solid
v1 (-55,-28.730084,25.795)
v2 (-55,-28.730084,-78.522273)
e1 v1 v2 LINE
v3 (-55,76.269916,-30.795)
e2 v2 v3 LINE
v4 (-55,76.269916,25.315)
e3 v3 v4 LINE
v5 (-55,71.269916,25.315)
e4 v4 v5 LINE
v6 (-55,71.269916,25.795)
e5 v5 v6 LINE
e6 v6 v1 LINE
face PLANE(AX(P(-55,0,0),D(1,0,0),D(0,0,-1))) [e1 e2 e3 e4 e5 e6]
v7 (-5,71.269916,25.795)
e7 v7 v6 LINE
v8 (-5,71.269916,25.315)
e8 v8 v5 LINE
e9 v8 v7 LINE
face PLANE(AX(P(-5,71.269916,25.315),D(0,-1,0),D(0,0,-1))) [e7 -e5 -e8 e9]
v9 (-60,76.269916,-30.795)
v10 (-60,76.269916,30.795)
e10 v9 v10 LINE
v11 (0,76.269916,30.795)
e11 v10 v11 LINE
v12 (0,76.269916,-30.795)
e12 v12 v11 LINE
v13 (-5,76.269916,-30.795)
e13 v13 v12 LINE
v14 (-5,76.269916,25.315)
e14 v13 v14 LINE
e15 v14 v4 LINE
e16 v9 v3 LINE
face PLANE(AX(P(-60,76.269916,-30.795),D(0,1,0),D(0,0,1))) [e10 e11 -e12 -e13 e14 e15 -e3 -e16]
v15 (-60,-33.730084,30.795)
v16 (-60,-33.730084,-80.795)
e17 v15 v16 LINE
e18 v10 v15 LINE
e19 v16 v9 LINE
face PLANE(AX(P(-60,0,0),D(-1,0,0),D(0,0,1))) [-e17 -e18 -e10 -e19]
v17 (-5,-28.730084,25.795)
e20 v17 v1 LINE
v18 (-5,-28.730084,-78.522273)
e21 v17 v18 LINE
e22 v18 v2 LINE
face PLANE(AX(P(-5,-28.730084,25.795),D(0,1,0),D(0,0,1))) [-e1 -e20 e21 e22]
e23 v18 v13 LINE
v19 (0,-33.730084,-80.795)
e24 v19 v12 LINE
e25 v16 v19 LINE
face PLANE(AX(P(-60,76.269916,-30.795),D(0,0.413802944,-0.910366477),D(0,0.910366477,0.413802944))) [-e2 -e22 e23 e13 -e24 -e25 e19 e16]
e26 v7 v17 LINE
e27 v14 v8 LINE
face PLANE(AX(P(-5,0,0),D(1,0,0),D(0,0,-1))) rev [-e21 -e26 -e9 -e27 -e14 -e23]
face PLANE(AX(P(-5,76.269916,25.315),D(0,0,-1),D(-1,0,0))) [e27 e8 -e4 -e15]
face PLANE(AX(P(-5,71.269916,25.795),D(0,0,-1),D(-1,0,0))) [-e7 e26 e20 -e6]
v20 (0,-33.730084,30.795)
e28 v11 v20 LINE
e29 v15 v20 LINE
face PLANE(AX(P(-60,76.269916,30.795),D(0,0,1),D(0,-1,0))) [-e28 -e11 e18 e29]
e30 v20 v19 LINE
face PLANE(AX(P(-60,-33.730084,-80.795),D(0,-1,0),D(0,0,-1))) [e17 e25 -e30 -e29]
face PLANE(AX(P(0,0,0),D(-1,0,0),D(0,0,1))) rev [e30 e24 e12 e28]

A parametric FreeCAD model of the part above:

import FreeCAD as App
import Part
import Sketcher

V = App.Vector

doc = App.newDocument("Part")
body = doc.addObject("PartDesign::Body", "Body")

# Sketch on YZ plane
sketch1 = doc.addObject("Sketcher::SketchObject", "Sketch")
body.addObject(sketch1)
sketch1.AttachmentSupport = (doc.YZ_Plane, [""])
sketch1.MapMode = "FlatFace"
sketch1.addGeometry(Part.LineSegment(V(-34, -81, 0), V(76, -31, 0)), False)
sketch1.addGeometry(Part.LineSegment(V(76, -31, 0), V(76, 31, 0)), False)
sketch1.addGeometry(Part.LineSegment(V(76, 31, 0), V(-34, 31, 0)), False)
sketch1.addGeometry(Part.LineSegment(V(-34, 31, 0), V(-34, -81, 0)), False)
sketch1.addConstraint(Sketcher.Constraint("Coincident", 0, 2, 1, 1))
sketch1.addConstraint(Sketcher.Constraint("Coincident", 1, 2, 2, 1))
sketch1.addConstraint(Sketcher.Constraint("Coincident", 2, 2, 3, 1))
sketch1.addConstraint(Sketcher.Constraint("Coincident", 3, 2, 0, 1))
sketch1.addConstraint(Sketcher.Constraint("Vertical", 1))
sketch1.addConstraint(Sketcher.Constraint("Horizontal", 2))
sketch1.addConstraint(Sketcher.Constraint("Vertical", 3))
sketch1.addConstraint(Sketcher.Constraint("DistanceX", 2, 2, 2, 1, 110.0))
sketch1.addConstraint(Sketcher.Constraint("DistanceY", 3, 2, 0, 2, 50.0))
sketch1.addConstraint(Sketcher.Constraint("DistanceY", 1, 1, 1, 2, 61.59))
sketch1.addConstraint(Sketcher.Constraint("DistanceY", 0, 2, -1, 1, 30.795))
sketch1.addConstraint(Sketcher.Constraint("DistanceX", -1, 1, 0, 2, 76.269916))
pad1 = doc.addObject("PartDesign::Pad", "Pad")
body.addObject(pad1)
pad1.Profile = sketch1
pad1.Length = 60
pad1.Reversed = True

# Sketch on YZ plane
sketch2 = doc.addObject("Sketcher::SketchObject", "Sketch001")
body.addObject(sketch2)
sketch2.AttachmentSupport = (doc.YZ_Plane, [""])
sketch2.MapMode = "FlatFace"
sketch2.AttachmentOffset = App.Placement(V(0, 0, -30), App.Rotation())
sketch2.addGeometry(Part.LineSegment(V(76.27, -30.8, 0), V(76.27, 25.32, 0)), False)
sketch2.addGeometry(Part.LineSegment(V(76.27, 25.32, 0), V(71.27, 25.32, 0)), False)
sketch2.addGeometry(Part.LineSegment(V(71.27, 25.32, 0), V(71.27, 25.8, 0)), False)
sketch2.addGeometry(Part.LineSegment(V(71.27, 25.8, 0), V(-28.73, 25.8, 0)), False)
sketch2.addGeometry(Part.LineSegment(V(-28.73, 25.8, 0), V(-28.73, -78.52, 0)), False)
sketch2.addGeometry(Part.LineSegment(V(-28.73, -78.52, 0), V(76.27, -30.8, 0)), False)
sketch2.addConstraint(Sketcher.Constraint("Coincident", 0, 2, 1, 1))
sketch2.addConstraint(Sketcher.Constraint("Coincident", 1, 2, 2, 1))
sketch2.addConstraint(Sketcher.Constraint("Coincident", 2, 2, 3, 1))
sketch2.addConstraint(Sketcher.Constraint("Coincident", 3, 2, 4, 1))
sketch2.addConstraint(Sketcher.Constraint("Coincident", 4, 2, 5, 1))
sketch2.addConstraint(Sketcher.Constraint("Coincident", 5, 2, 0, 1))
sketch2.addConstraint(Sketcher.Constraint("Vertical", 0))
sketch2.addConstraint(Sketcher.Constraint("Horizontal", 1))
sketch2.addConstraint(Sketcher.Constraint("Vertical", 2))
sketch2.addConstraint(Sketcher.Constraint("Horizontal", 3))
sketch2.addConstraint(Sketcher.Constraint("Vertical", 4))
sketch2.addConstraint(Sketcher.Constraint("DistanceX", 1, 2, 1, 1, 5.0))
sketch2.addConstraint(Sketcher.Constraint("DistanceX", 3, 2, 3, 1, 100.0))
sketch2.addConstraint(Sketcher.Constraint("DistanceY", 0, 1, 0, 2, 56.11))
sketch2.addConstraint(Sketcher.Constraint("DistanceY", 2, 1, 2, 2, 0.48))
sketch2.addConstraint(Sketcher.Constraint("DistanceY", -1, 1, 0, 2, 25.315))
sketch2.addConstraint(Sketcher.Constraint("DistanceY", 4, 2, 4, 1, 104.317273))
sketch2.addConstraint(Sketcher.Constraint("DistanceX", -1, 1, 0, 2, 76.269916))
pocket1 = doc.addObject("PartDesign::Pocket", "Pocket")
body.addObject(pocket1)
pocket1.Profile = sketch2
pocket1.Type = "TwoLengths"
pocket1.Length = 25
pocket1.Length2 = 25
pocket1.Reversed = True

doc.recompute()
